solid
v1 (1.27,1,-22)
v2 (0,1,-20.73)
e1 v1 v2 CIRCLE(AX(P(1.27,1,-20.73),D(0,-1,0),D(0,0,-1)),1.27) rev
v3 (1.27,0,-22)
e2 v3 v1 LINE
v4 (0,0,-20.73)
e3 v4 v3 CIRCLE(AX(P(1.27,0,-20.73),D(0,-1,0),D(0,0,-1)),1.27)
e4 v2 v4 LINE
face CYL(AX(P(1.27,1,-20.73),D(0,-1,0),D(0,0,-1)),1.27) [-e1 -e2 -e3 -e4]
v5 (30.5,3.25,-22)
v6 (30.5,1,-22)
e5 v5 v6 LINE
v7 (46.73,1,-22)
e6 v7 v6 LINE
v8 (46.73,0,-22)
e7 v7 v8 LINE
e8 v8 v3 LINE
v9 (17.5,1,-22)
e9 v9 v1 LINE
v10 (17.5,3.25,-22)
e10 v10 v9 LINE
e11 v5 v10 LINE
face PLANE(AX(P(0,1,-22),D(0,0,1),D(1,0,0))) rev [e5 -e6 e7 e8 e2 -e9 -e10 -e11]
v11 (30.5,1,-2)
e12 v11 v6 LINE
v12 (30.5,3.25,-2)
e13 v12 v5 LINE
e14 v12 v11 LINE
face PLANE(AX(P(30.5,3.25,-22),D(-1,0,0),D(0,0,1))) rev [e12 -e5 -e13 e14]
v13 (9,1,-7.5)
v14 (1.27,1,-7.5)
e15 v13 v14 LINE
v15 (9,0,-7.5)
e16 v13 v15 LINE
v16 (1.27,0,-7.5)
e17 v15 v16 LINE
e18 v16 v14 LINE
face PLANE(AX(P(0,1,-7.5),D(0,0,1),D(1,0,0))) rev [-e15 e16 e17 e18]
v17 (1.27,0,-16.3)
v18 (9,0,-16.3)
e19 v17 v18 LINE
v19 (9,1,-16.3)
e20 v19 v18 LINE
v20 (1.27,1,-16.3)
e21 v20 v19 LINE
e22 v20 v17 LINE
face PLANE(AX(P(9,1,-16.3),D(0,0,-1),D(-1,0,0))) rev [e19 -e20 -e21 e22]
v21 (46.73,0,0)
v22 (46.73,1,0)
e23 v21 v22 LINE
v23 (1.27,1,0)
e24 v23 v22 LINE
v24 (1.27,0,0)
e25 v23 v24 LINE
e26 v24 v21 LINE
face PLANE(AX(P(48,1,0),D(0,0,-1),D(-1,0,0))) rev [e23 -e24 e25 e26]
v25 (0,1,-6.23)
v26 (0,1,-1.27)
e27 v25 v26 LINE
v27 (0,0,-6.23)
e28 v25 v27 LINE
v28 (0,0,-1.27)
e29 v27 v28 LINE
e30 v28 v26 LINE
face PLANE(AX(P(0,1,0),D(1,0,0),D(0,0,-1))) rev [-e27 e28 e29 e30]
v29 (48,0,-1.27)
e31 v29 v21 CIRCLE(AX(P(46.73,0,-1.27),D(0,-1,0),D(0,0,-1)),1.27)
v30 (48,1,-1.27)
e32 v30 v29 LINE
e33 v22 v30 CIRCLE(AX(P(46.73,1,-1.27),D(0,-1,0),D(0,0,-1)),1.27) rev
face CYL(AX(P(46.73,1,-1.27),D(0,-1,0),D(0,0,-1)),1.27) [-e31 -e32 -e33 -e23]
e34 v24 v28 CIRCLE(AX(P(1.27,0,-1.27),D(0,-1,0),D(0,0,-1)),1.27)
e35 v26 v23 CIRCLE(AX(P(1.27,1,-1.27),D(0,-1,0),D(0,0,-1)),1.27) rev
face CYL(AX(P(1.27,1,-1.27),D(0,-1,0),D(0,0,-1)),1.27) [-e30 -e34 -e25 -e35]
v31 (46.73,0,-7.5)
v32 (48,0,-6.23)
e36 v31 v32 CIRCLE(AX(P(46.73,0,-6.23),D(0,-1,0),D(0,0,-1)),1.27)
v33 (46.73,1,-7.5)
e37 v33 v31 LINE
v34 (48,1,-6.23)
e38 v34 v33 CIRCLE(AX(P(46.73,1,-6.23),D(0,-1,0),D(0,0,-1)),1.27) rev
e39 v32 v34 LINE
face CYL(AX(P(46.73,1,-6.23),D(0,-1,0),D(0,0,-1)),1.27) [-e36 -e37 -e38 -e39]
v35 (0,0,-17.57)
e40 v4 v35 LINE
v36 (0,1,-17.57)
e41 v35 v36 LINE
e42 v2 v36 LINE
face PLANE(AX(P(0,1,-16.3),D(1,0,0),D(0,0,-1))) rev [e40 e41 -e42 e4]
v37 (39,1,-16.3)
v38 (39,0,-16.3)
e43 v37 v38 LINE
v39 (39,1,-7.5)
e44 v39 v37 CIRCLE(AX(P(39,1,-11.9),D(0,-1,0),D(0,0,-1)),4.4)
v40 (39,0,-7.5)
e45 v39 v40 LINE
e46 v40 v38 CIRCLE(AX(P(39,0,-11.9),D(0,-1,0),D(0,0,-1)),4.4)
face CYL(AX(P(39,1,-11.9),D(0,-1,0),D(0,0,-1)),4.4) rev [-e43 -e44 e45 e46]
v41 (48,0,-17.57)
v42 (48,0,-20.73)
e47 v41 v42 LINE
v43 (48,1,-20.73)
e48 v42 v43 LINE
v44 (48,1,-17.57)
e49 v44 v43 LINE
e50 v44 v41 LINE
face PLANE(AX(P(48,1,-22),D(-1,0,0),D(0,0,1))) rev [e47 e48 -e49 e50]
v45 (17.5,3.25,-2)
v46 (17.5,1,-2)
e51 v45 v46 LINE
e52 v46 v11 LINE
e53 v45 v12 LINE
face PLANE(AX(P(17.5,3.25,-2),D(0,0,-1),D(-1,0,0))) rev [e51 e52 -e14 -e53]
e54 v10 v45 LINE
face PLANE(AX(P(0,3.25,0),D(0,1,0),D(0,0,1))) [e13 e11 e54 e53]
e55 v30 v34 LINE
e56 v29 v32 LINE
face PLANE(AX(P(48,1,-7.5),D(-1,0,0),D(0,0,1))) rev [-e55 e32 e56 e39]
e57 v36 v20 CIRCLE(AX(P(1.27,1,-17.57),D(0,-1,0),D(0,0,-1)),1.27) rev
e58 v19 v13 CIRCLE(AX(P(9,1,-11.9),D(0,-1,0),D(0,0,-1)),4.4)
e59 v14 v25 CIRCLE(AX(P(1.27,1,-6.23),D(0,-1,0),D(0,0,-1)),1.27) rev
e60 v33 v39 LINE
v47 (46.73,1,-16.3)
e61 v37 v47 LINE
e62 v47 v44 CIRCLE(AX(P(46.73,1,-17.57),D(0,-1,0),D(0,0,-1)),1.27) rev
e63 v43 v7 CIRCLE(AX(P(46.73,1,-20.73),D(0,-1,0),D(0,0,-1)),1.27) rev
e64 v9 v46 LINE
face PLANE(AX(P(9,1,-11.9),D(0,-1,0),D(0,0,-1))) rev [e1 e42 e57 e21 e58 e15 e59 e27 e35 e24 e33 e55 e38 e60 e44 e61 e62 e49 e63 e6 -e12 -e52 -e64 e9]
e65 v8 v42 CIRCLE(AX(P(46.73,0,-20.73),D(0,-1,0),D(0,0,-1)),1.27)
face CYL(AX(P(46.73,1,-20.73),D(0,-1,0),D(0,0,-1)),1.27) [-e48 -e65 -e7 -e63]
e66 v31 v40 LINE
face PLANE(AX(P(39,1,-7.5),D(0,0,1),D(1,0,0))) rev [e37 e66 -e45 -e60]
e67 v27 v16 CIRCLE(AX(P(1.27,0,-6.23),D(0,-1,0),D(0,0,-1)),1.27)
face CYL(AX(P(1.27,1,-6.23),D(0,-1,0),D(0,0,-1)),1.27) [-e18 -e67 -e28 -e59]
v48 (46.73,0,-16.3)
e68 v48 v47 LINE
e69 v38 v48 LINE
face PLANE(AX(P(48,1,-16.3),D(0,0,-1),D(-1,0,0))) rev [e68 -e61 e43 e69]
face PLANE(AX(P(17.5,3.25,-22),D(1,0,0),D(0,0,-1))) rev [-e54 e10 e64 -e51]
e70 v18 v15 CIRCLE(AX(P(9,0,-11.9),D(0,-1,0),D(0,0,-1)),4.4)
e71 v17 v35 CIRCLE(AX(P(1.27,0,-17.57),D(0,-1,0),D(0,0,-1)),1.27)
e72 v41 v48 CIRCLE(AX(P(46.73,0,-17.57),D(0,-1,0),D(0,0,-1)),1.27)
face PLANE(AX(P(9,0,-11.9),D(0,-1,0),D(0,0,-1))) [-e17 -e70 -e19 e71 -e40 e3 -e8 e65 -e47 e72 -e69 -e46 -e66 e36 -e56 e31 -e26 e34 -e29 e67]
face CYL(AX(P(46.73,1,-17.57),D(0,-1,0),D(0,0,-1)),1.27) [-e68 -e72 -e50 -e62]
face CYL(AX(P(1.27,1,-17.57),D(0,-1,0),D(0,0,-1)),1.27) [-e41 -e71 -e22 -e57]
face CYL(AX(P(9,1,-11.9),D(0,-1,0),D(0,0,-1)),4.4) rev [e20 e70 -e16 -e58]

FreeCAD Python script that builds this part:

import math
import FreeCAD as App
import Part
import Sketcher

V = App.Vector


def edges_at(feature, points):
    """Names of the edges that pass closest to the given points."""
    edges = feature.Shape.Edges
    near = lambda p: min(range(len(edges)), key=lambda i: edges[i].distToShape(Part.Vertex(*p))[0])
    return sorted({f"Edge{near(p) + 1}" for p in points})


def add_polygon(sketch, points):
    """Adds a closed chain of lines whose ends are joined by coincident constraints."""
    first, n = sketch.GeometryCount, len(points)
    for a, b in zip(points, points[1:] + points[:1]):
        sketch.addGeometry(Part.LineSegment(App.Vector(*a, 0), App.Vector(*b, 0)), False)
    for i in range(n):
        sketch.addConstraint(Sketcher.Constraint("Coincident", first + i, 2, first + (i + 1) % n, 1))

doc = App.newDocument("Part")
body = doc.addObject("PartDesign::Body", "Body")

# Sketch on XZ plane
sketch1 = doc.addObject("Sketcher::SketchObject", "Sketch")
body.addObject(sketch1)
sketch1.AttachmentSupport = (doc.XZ_Plane, [""])
sketch1.MapMode = "FlatFace"
sketch1.addGeometry(Part.LineSegment(V(0, -7.5, 0), V(0, 0, 0)), False)
sketch1.addGeometry(Part.LineSegment(V(0, 0, 0), V(48, 0, 0)), False)
sketch1.addGeometry(Part.LineSegment(V(48, 0, 0), V(48, -7.5, 0)), False)
sketch1.addGeometry(Part.LineSegment(V(48, -7.5, 0), V(39, -7.5, 0)), False)
sketch1.addGeometry(Part.ArcOfCircle(Part.Circle(V(39, -11.9, 0), V(0, 0, 1), 4.4), math.radians(90), math.radians(270)), False)
sketch1.addGeometry(Part.LineSegment(V(39, -16.3, 0), V(48, -16.3, 0)), False)
sketch1.addGeometry(Part.LineSegment(V(48, -16.3, 0), V(48, -22, 0)), False)
sketch1.addGeometry(Part.LineSegment(V(48, -22, 0), V(0, -22, 0)), False)
sketch1.addGeometry(Part.LineSegment(V(0, -22, 0), V(0, -16.3, 0)), False)
sketch1.addGeometry(Part.LineSegment(V(0, -16.3, 0), V(9, -16.3, 0)), False)
sketch1.addGeometry(Part.ArcOfCircle(Part.Circle(V(9, -11.9, 0), V(0, 0, 1), 4.4), math.radians(-90), math.radians(90)), False)
sketch1.addGeometry(Part.LineSegment(V(9, -7.5, 0), V(0, -7.5, 0)), False)
sketch1.addConstraint(Sketcher.Constraint("Coincident", 0, 2, 1, 1))
sketch1.addConstraint(Sketcher.Constraint("Coincident", 1, 2, 2, 1))
sketch1.addConstraint(Sketcher.Constraint("Coincident", 2, 2, 3, 1))
sketch1.addConstraint(Sketcher.Constraint("Tangent", 3, 2, 4, 1))
sketch1.addConstraint(Sketcher.Constraint("Tangent", 4, 2, 5, 1))
sketch1.addConstraint(Sketcher.Constraint("Coincident", 5, 2, 6, 1))
sketch1.addConstraint(Sketcher.Constraint("Coincident", 6, 2, 7, 1))
sketch1.addConstraint(Sketcher.Constraint("Coincident", 7, 2, 8, 1))
sketch1.addConstraint(Sketcher.Constraint("Coincident", 8, 2, 9, 1))
sketch1.addConstraint(Sketcher.Constraint("Tangent", 9, 2, 10, 1))
sketch1.addConstraint(Sketcher.Constraint("Tangent", 10, 2, 11, 1))
sketch1.addConstraint(Sketcher.Constraint("Coincident", 11, 2, 0, 1))
sketch1.addConstraint(Sketcher.Constraint("Vertical", 0))
sketch1.addConstraint(Sketcher.Constraint("Horizontal", 1))
sketch1.addConstraint(Sketcher.Constraint("Vertical", 2))
sketch1.addConstraint(Sketcher.Constraint("Horizontal", 3))
sketch1.addConstraint(Sketcher.Constraint("Horizontal", 5))
sketch1.addConstraint(Sketcher.Constraint("Vertical", 6))
sketch1.addConstraint(Sketcher.Constraint("Horizontal", 7))
sketch1.addConstraint(Sketcher.Constraint("Vertical", 8))
sketch1.addConstraint(Sketcher.Constraint("Horizontal", 9))
sketch1.addConstraint(Sketcher.Constraint("Horizontal", 11))
sketch1.addConstraint(Sketcher.Constraint("Coincident", 0, 2, -1, 1))
sketch1.addConstraint(Sketcher.Constraint("Equal", 4, 10))
sketch1.addConstraint(Sketcher.Constraint("PointOnObject", 7, 2, -2))
sketch1.addConstraint(Sketcher.Constraint("Horizontal", 4, 3, 10, 3))
sketch1.addConstraint(Sketcher.Constraint("Vertical", 2, 2, 5, 2))
sketch1.addConstraint(Sketcher.Constraint("Equal", 5, 9))
sketch1.addConstraint(Sketcher.Constraint("Radius", 4, 4.4))
sketch1.addConstraint(Sketcher.Constraint("DistanceX", 1, 1, 1, 2, 48.0))
sketch1.addConstraint(Sketcher.Constraint("DistanceX", 3, 2, 3, 1, 9.0))
sketch1.addConstraint(Sketcher.Constraint("DistanceY", 0, 1, 0, 2, 7.5))
sketch1.addConstraint(Sketcher.Constraint("DistanceY", 6, 2, 6, 1, 5.7))
pad1 = doc.addObject("PartDesign::Pad", "Pad")
body.addObject(pad1)
pad1.Profile = sketch1
pad1.Length = 1
pad1.Reversed = True
doc.recompute()

fillet = doc.addObject("PartDesign::Fillet", "Fillet")
body.addObject(fillet)
fillet.Base = (pad1, edges_at(pad1, [
    (0, 0.5, 0),
    (0, 0.5, -7.5),
    (0, 0.5, -16.3),
    (0, 0.5, -22),
    (48, 0.5, -22),
    (48, 0.5, -16.3),
    (48, 0.5, -7.5),
    (48, 0.5, 0),
]))
fillet.Radius = 1.27

# Sketch on XZ plane
sketch2 = doc.addObject("Sketcher::SketchObject", "Sketch001")
body.addObject(sketch2)
sketch2.AttachmentSupport = (doc.XZ_Plane, [""])
sketch2.MapMode = "FlatFace"
sketch2.AttachmentOffset = App.Placement(V(0, 0, -1), App.Rotation())
add_polygon(sketch2, [(18, -22), (18, -2), (30, -2), (30, -22)])  # lines 0-3
sketch2.addConstraint(Sketcher.Constraint("Vertical", 0))
sketch2.addConstraint(Sketcher.Constraint("Horizontal", 1))
sketch2.addConstraint(Sketcher.Constraint("Vertical", 2))
sketch2.addConstraint(Sketcher.Constraint("Horizontal", 3))
sketch2.addConstraint(Sketcher.Constraint("DistanceX", 1, 1, 1, 2, 13.0))
sketch2.addConstraint(Sketcher.Constraint("DistanceY", 0, 1, 0, 2, 20.0))
sketch2.addConstraint(Sketcher.Constraint("DistanceY", 0, 2, -1, 1, 2.0))
sketch2.addConstraint(Sketcher.Constraint("DistanceX", -1, 1, 0, 2, 17.5))
pad2 = doc.addObject("PartDesign::Pad", "Pad001")
body.addObject(pad2)
pad2.Profile = sketch2
pad2.Length = 2.25
pad2.Reversed = True

doc.recompute()
